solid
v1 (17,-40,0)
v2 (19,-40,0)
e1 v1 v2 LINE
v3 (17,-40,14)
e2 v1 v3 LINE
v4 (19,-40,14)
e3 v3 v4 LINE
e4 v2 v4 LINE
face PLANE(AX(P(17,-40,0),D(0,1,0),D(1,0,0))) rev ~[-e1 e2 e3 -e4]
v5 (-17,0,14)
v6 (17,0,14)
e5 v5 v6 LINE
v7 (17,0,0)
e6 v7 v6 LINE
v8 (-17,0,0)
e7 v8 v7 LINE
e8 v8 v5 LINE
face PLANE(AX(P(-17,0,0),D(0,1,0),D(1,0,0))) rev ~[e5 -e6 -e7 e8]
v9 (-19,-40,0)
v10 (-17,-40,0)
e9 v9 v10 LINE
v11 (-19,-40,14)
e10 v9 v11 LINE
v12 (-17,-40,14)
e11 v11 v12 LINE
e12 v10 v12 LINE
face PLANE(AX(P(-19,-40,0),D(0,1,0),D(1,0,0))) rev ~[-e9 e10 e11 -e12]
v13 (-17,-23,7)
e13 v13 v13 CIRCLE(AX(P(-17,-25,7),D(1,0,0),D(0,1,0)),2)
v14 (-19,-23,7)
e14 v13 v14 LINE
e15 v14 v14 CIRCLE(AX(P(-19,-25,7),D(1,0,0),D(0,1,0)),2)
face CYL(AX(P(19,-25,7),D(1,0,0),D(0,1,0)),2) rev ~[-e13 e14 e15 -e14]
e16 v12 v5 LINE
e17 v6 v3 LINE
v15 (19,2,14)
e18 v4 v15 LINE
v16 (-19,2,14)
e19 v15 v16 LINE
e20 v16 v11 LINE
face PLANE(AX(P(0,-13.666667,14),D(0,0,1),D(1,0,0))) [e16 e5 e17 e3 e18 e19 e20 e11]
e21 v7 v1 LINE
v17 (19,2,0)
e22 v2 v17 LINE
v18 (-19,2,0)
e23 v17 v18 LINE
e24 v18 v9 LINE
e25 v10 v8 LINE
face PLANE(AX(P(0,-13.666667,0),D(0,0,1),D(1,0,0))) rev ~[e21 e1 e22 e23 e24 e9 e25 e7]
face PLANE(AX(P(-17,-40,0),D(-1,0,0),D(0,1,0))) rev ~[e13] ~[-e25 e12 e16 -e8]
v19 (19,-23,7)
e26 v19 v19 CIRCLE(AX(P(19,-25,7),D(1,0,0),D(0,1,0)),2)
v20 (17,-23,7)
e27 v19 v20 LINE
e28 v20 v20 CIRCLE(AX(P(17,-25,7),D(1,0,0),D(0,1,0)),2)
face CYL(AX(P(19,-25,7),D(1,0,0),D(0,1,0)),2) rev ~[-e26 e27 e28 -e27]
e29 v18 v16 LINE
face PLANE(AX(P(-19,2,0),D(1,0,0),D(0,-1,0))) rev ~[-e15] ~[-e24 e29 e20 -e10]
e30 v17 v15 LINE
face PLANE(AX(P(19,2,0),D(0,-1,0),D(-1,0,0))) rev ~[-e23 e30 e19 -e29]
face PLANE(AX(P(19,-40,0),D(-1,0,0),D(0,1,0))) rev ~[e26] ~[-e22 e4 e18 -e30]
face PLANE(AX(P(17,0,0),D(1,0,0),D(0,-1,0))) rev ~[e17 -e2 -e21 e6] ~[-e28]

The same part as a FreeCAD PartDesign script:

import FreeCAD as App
import Part
import Sketcher


def add_polygon(sketch, points):
    """Adds a closed chain of lines whose ends are joined by coincident constraints."""
    first, n = sketch.GeometryCount, len(points)
    for a, b in zip(points, points[1:] + points[:1]):
        sketch.addGeometry(Part.LineSegment(App.Vector(*a, 0), App.Vector(*b, 0)), False)
    for i in range(n):
        sketch.addConstraint(Sketcher.Constraint("Coincident", first + i, 2, first + (i + 1) % n, 1))

doc = App.newDocument("Part")
body = doc.addObject("PartDesign::Body", "Body")

# Sketch on XY plane
sketch1 = body.newObject("Sketcher::SketchObject", "Sketch")
sketch1.AttachmentSupport = (doc.getObject("XY_Plane"), [""])
sketch1.MapMode = "FlatFace"
add_polygon(sketch1, [(-17, -40), (-17, 0), (17, 0), (17, -40), (19, -40), (19, 2), (-19, 2), (-19, -40)])  # lines 0-7
sketch1.addConstraint([
    Sketcher.Constraint("Vertical", 0),
    Sketcher.Constraint("Horizontal", 1),
    Sketcher.Constraint("Vertical", 2),
    Sketcher.Constraint("Horizontal", 3),
    Sketcher.Constraint("Vertical", 4),
    Sketcher.Constraint("Horizontal", 5),
    Sketcher.Constraint("Vertical", 6),
    Sketcher.Constraint("Horizontal", 7),
    Sketcher.Constraint("Symmetric", 0, 2, 1, 2, -1, 1),
    Sketcher.Constraint("Symmetric", 3, 2, 6, 2, -2),
    Sketcher.Constraint("DistanceX", 1, 1, 1, 2, 34.0),
    Sketcher.Constraint("DistanceX", 3, 1, 3, 2, 2.0),
    Sketcher.Constraint("DistanceY", 0, 1, 0, 2, 40.0),
    Sketcher.Constraint("DistanceY", 4, 1, 4, 2, 42.0),
])
pad1 = body.newObject("PartDesign::Pad", "Pad")
pad1.Profile = sketch1
pad1.Length = 14

# Sketch on YZ plane
sketch2 = body.newObject("Sketcher::SketchObject", "Sketch001")
sketch2.AttachmentSupport = (doc.getObject("YZ_Plane"), [""])
sketch2.MapMode = "FlatFace"
sketch2.AttachmentOffset = App.Placement(App.Vector(0, 0, 19), App.Rotation())
sketch2.addGeometry(Part.Circle(App.Vector(-25, 7, 0), App.Vector(0, 0, 1), 2), False)
sketch2.addConstraint([
    Sketcher.Constraint("Diameter", 0, 4.0),
    Sketcher.Constraint("DistanceX", 0, 3, -1, 1, 25.0),
    Sketcher.Constraint("DistanceY", -1, 1, 0, 3, 7.0),
])
pocket1 = body.newObject("PartDesign::Pocket", "Pocket")
pocket1.Profile = sketch2
pocket1.Type = "ThroughAll"

doc.recompute()
